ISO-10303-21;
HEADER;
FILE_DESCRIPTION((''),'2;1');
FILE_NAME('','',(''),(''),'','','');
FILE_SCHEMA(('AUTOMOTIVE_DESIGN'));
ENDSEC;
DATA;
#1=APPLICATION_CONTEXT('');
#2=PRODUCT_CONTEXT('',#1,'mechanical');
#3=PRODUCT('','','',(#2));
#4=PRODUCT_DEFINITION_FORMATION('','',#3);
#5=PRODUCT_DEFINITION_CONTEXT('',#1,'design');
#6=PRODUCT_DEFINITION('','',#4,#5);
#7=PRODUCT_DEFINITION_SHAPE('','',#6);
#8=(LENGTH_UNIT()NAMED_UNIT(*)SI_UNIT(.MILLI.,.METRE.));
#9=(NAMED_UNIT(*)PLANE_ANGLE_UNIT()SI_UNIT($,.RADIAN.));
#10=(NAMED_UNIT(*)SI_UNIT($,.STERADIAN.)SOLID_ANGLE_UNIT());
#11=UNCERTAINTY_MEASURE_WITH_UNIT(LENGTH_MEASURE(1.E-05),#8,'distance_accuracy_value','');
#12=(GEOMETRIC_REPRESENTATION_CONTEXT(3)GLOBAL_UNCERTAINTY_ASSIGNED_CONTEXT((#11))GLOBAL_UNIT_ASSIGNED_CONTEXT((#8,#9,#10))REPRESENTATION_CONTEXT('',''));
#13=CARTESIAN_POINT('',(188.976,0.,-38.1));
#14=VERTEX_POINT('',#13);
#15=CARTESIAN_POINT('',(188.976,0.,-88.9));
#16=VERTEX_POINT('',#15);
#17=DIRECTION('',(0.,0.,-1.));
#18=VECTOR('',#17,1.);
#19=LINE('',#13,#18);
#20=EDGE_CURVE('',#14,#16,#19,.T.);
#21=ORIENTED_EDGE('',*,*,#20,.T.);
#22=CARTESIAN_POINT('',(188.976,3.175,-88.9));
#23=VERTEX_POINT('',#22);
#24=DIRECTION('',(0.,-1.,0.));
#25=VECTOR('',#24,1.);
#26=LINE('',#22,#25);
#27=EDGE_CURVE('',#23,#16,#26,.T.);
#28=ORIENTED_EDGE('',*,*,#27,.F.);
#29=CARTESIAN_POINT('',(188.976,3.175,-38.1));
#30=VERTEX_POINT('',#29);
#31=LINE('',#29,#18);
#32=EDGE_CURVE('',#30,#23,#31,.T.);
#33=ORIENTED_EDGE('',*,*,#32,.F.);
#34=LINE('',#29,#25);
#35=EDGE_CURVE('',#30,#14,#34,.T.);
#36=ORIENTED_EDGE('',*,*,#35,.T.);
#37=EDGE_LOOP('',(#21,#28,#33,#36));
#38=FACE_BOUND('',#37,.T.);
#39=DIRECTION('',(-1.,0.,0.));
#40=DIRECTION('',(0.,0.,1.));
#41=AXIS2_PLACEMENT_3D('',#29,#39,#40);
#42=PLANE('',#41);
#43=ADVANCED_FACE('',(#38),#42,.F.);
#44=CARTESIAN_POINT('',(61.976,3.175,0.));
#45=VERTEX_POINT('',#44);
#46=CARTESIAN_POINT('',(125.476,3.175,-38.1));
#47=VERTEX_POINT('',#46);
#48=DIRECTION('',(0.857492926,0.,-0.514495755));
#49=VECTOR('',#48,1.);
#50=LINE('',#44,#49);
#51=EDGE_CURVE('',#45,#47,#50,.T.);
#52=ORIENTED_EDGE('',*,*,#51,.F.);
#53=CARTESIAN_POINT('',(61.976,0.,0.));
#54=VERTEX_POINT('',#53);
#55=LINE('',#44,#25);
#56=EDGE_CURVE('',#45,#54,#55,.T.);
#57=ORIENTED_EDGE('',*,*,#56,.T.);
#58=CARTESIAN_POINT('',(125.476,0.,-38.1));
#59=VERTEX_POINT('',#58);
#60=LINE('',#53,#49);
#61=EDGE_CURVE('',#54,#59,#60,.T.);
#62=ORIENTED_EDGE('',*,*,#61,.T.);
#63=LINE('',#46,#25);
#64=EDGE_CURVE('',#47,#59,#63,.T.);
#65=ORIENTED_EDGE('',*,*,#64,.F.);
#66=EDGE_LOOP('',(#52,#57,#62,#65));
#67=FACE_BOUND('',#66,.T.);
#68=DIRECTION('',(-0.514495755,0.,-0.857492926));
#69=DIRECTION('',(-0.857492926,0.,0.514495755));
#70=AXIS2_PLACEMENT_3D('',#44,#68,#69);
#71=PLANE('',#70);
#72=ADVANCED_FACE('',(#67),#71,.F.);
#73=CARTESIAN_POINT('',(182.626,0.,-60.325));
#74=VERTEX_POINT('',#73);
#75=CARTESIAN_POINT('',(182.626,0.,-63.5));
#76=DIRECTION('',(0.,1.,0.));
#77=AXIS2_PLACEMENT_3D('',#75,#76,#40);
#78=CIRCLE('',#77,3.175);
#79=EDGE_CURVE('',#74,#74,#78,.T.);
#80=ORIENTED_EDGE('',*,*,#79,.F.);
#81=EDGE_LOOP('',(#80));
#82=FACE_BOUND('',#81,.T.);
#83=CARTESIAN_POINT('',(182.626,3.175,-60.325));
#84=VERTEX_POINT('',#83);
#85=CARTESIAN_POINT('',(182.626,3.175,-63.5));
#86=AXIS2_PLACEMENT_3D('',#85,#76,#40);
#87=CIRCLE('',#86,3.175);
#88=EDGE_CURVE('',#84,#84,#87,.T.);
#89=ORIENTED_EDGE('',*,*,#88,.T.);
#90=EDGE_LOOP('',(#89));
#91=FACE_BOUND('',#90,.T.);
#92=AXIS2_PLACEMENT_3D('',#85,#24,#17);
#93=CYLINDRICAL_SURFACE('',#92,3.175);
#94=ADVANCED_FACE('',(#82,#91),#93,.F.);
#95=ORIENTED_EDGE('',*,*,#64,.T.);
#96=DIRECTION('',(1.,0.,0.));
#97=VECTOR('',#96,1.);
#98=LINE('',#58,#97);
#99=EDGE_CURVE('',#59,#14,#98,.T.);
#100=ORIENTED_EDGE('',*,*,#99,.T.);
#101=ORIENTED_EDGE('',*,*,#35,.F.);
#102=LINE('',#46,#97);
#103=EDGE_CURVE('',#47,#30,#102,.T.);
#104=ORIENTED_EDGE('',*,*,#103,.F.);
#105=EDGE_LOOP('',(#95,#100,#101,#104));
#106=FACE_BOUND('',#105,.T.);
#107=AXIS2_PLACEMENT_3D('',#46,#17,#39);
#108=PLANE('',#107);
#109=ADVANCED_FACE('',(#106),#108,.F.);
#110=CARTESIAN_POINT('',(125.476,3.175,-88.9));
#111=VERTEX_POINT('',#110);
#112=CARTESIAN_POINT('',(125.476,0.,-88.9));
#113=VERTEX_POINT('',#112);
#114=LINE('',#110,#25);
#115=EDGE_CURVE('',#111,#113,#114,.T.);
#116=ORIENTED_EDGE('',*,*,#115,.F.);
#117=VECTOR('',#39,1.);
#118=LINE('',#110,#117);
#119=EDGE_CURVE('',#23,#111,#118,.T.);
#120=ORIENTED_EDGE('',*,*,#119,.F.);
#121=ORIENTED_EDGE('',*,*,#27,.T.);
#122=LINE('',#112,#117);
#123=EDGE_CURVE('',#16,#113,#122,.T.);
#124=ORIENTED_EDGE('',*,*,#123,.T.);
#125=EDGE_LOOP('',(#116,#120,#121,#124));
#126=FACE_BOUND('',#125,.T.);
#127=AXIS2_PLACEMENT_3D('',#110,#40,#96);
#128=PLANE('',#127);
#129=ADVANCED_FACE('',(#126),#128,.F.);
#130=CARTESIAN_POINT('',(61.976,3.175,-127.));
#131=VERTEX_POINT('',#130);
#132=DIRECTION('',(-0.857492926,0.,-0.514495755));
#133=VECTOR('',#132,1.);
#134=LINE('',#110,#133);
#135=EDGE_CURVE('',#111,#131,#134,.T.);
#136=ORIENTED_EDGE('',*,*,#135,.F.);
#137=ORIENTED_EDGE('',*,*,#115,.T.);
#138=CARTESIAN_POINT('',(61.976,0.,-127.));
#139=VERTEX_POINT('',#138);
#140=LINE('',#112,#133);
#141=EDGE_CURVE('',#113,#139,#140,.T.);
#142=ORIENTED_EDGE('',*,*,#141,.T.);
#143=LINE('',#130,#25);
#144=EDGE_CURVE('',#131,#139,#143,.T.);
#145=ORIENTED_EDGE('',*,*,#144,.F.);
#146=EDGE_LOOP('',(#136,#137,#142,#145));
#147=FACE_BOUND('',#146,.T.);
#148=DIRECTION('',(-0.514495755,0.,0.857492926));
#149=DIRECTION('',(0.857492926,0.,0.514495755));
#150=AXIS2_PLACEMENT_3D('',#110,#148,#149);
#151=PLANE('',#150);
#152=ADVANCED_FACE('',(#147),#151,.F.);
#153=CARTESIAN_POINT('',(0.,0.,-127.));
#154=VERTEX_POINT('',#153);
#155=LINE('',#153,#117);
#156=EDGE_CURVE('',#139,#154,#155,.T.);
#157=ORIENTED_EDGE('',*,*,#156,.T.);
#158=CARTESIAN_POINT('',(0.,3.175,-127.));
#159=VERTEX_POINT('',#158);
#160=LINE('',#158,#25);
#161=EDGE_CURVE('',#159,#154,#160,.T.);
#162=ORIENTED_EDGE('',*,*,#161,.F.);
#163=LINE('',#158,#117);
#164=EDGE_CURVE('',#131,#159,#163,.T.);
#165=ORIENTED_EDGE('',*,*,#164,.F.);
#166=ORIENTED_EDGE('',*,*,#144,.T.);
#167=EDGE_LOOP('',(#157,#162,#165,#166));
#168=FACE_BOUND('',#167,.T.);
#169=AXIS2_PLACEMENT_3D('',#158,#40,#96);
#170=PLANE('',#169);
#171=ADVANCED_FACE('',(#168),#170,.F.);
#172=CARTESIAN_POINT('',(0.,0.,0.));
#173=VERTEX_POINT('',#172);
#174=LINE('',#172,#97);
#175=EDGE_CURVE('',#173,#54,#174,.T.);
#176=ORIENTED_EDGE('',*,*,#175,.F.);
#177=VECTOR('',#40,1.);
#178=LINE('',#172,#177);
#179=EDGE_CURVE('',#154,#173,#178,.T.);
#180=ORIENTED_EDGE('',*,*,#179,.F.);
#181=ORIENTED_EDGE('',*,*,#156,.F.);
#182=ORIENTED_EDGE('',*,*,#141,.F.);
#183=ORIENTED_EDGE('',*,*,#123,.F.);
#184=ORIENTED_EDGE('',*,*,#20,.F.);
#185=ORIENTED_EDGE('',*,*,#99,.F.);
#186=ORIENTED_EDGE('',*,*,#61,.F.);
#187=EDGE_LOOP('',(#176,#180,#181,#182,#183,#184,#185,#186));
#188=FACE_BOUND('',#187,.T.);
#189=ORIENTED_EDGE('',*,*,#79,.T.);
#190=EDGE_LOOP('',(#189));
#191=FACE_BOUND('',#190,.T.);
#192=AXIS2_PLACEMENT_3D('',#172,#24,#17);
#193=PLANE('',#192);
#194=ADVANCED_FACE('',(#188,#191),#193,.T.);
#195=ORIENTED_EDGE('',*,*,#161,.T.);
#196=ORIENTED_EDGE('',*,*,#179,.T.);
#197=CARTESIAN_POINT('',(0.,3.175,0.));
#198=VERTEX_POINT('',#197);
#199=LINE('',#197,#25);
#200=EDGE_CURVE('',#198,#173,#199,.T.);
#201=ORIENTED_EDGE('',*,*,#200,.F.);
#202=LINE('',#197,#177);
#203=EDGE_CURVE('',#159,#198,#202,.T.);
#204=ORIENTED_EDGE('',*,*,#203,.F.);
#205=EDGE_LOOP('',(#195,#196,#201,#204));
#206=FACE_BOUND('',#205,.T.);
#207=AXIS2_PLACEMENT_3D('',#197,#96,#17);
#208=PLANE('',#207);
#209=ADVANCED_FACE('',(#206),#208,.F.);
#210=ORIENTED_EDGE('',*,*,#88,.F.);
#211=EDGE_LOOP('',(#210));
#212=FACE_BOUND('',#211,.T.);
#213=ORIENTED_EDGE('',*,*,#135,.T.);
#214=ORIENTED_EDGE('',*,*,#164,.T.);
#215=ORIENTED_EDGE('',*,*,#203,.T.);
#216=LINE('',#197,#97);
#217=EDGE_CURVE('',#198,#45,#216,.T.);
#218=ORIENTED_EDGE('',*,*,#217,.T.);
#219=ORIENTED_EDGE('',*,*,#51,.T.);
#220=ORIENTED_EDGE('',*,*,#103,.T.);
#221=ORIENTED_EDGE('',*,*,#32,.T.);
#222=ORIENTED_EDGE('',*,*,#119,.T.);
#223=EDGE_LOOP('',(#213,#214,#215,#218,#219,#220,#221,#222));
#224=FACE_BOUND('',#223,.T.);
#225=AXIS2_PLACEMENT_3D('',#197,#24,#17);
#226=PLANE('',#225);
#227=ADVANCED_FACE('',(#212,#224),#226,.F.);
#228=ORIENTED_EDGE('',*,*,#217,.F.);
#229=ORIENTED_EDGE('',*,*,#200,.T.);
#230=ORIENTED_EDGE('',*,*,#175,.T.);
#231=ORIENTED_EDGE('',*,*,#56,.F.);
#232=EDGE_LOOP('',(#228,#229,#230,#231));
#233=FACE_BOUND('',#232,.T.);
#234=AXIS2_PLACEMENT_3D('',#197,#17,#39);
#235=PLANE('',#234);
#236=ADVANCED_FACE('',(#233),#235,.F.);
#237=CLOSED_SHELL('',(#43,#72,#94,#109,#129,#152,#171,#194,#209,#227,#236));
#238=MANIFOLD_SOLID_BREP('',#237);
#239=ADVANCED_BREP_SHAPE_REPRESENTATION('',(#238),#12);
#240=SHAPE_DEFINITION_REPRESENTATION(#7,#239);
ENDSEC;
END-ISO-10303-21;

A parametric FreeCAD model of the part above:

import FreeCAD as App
import Part
import Sketcher
Q = App.Units.Quantity

doc = App.newDocument("Part")
body = doc.addObject("PartDesign::Body", "Body")

sketch1 = body.newObject("Sketcher::SketchObject", "Sketch")
sketch1.AttachmentSupport = (doc.getObject("XZ_Plane"), [""])
sketch1.MapMode = "FlatFace"
sketch1.addGeometry([
    Part.LineSegment(App.Vector(62, 0, 0), App.Vector(125.5, -38.1, 0)),
    Part.LineSegment(App.Vector(125.5, -38.1, 0), App.Vector(189, -38.1, 0)),
    Part.LineSegment(App.Vector(189, -38.1, 0), App.Vector(189, -88.9, 0)),
    Part.LineSegment(App.Vector(189, -88.9, 0), App.Vector(125.5, -88.9, 0)),
    Part.LineSegment(App.Vector(125.5, -88.9, 0), App.Vector(62, -127, 0)),
    Part.LineSegment(App.Vector(62, -127, 0), App.Vector(0, -127, 0)),
    Part.LineSegment(App.Vector(0, -127, 0), App.Vector(0, 0, 0)),
    Part.LineSegment(App.Vector(0, 0, 0), App.Vector(62, 0, 0)),
    Part.Circle(App.Vector(182.6, -63.5, 0), App.Vector(0, 0, 1), 3.2),
], False)
sketch1.addConstraint([
    Sketcher.Constraint("Coincident", 0, 2, 1, 1),
    Sketcher.Constraint("Coincident", 1, 2, 2, 1),
    Sketcher.Constraint("Coincident", 2, 2, 3, 1),
    Sketcher.Constraint("Coincident", 3, 2, 4, 1),
    Sketcher.Constraint("Coincident", 4, 2, 5, 1),
    Sketcher.Constraint("Coincident", 5, 2, 6, 1),
    Sketcher.Constraint("Coincident", 6, 2, 7, 1),
    Sketcher.Constraint("Coincident", 7, 2, 0, 1),
    Sketcher.Constraint("Horizontal", 1),
    Sketcher.Constraint("Vertical", 2),
    Sketcher.Constraint("Horizontal", 3),
    Sketcher.Constraint("Horizontal", 5),
    Sketcher.Constraint("Vertical", 6),
    Sketcher.Constraint("Horizontal", 7),
    Sketcher.Constraint("Coincident", 6, 2, -1, 1),
    Sketcher.Constraint("Vertical", 0, 2, 3, 2),
    Sketcher.Constraint("Vertical", 4, 2, 7, 2),
    Sketcher.Constraint("Equal", 0, 4),
    Sketcher.Constraint("Diameter", 8, Q("0.25 in")),
    Sketcher.Constraint("DistanceY", 2, 2, 2, 1, Q("2 in")),
    Sketcher.Constraint("DistanceY", 6, 1, 6, 2, Q("5 in")),
    Sketcher.Constraint("DistanceX", 1, 1, 1, 2, Q("2.5 in")),
    Sketcher.Constraint("DistanceY", 8, 3, 0, 2, Q("1 in")),
    Sketcher.Constraint("DistanceX", 4, 2, 2, 2, Q("5 in")),
    Sketcher.Constraint("DistanceX", 5, 2, 5, 1, Q("2.44 in")),
    Sketcher.Constraint("DistanceX", -1, 1, 8, 3, Q("7.19 in")),
])
pad1 = body.newObject("PartDesign::Pad", "Pad")
pad1.Profile = sketch1
pad1.Length = Q("0.125 in")
pad1.Reversed = True

doc.recompute()
